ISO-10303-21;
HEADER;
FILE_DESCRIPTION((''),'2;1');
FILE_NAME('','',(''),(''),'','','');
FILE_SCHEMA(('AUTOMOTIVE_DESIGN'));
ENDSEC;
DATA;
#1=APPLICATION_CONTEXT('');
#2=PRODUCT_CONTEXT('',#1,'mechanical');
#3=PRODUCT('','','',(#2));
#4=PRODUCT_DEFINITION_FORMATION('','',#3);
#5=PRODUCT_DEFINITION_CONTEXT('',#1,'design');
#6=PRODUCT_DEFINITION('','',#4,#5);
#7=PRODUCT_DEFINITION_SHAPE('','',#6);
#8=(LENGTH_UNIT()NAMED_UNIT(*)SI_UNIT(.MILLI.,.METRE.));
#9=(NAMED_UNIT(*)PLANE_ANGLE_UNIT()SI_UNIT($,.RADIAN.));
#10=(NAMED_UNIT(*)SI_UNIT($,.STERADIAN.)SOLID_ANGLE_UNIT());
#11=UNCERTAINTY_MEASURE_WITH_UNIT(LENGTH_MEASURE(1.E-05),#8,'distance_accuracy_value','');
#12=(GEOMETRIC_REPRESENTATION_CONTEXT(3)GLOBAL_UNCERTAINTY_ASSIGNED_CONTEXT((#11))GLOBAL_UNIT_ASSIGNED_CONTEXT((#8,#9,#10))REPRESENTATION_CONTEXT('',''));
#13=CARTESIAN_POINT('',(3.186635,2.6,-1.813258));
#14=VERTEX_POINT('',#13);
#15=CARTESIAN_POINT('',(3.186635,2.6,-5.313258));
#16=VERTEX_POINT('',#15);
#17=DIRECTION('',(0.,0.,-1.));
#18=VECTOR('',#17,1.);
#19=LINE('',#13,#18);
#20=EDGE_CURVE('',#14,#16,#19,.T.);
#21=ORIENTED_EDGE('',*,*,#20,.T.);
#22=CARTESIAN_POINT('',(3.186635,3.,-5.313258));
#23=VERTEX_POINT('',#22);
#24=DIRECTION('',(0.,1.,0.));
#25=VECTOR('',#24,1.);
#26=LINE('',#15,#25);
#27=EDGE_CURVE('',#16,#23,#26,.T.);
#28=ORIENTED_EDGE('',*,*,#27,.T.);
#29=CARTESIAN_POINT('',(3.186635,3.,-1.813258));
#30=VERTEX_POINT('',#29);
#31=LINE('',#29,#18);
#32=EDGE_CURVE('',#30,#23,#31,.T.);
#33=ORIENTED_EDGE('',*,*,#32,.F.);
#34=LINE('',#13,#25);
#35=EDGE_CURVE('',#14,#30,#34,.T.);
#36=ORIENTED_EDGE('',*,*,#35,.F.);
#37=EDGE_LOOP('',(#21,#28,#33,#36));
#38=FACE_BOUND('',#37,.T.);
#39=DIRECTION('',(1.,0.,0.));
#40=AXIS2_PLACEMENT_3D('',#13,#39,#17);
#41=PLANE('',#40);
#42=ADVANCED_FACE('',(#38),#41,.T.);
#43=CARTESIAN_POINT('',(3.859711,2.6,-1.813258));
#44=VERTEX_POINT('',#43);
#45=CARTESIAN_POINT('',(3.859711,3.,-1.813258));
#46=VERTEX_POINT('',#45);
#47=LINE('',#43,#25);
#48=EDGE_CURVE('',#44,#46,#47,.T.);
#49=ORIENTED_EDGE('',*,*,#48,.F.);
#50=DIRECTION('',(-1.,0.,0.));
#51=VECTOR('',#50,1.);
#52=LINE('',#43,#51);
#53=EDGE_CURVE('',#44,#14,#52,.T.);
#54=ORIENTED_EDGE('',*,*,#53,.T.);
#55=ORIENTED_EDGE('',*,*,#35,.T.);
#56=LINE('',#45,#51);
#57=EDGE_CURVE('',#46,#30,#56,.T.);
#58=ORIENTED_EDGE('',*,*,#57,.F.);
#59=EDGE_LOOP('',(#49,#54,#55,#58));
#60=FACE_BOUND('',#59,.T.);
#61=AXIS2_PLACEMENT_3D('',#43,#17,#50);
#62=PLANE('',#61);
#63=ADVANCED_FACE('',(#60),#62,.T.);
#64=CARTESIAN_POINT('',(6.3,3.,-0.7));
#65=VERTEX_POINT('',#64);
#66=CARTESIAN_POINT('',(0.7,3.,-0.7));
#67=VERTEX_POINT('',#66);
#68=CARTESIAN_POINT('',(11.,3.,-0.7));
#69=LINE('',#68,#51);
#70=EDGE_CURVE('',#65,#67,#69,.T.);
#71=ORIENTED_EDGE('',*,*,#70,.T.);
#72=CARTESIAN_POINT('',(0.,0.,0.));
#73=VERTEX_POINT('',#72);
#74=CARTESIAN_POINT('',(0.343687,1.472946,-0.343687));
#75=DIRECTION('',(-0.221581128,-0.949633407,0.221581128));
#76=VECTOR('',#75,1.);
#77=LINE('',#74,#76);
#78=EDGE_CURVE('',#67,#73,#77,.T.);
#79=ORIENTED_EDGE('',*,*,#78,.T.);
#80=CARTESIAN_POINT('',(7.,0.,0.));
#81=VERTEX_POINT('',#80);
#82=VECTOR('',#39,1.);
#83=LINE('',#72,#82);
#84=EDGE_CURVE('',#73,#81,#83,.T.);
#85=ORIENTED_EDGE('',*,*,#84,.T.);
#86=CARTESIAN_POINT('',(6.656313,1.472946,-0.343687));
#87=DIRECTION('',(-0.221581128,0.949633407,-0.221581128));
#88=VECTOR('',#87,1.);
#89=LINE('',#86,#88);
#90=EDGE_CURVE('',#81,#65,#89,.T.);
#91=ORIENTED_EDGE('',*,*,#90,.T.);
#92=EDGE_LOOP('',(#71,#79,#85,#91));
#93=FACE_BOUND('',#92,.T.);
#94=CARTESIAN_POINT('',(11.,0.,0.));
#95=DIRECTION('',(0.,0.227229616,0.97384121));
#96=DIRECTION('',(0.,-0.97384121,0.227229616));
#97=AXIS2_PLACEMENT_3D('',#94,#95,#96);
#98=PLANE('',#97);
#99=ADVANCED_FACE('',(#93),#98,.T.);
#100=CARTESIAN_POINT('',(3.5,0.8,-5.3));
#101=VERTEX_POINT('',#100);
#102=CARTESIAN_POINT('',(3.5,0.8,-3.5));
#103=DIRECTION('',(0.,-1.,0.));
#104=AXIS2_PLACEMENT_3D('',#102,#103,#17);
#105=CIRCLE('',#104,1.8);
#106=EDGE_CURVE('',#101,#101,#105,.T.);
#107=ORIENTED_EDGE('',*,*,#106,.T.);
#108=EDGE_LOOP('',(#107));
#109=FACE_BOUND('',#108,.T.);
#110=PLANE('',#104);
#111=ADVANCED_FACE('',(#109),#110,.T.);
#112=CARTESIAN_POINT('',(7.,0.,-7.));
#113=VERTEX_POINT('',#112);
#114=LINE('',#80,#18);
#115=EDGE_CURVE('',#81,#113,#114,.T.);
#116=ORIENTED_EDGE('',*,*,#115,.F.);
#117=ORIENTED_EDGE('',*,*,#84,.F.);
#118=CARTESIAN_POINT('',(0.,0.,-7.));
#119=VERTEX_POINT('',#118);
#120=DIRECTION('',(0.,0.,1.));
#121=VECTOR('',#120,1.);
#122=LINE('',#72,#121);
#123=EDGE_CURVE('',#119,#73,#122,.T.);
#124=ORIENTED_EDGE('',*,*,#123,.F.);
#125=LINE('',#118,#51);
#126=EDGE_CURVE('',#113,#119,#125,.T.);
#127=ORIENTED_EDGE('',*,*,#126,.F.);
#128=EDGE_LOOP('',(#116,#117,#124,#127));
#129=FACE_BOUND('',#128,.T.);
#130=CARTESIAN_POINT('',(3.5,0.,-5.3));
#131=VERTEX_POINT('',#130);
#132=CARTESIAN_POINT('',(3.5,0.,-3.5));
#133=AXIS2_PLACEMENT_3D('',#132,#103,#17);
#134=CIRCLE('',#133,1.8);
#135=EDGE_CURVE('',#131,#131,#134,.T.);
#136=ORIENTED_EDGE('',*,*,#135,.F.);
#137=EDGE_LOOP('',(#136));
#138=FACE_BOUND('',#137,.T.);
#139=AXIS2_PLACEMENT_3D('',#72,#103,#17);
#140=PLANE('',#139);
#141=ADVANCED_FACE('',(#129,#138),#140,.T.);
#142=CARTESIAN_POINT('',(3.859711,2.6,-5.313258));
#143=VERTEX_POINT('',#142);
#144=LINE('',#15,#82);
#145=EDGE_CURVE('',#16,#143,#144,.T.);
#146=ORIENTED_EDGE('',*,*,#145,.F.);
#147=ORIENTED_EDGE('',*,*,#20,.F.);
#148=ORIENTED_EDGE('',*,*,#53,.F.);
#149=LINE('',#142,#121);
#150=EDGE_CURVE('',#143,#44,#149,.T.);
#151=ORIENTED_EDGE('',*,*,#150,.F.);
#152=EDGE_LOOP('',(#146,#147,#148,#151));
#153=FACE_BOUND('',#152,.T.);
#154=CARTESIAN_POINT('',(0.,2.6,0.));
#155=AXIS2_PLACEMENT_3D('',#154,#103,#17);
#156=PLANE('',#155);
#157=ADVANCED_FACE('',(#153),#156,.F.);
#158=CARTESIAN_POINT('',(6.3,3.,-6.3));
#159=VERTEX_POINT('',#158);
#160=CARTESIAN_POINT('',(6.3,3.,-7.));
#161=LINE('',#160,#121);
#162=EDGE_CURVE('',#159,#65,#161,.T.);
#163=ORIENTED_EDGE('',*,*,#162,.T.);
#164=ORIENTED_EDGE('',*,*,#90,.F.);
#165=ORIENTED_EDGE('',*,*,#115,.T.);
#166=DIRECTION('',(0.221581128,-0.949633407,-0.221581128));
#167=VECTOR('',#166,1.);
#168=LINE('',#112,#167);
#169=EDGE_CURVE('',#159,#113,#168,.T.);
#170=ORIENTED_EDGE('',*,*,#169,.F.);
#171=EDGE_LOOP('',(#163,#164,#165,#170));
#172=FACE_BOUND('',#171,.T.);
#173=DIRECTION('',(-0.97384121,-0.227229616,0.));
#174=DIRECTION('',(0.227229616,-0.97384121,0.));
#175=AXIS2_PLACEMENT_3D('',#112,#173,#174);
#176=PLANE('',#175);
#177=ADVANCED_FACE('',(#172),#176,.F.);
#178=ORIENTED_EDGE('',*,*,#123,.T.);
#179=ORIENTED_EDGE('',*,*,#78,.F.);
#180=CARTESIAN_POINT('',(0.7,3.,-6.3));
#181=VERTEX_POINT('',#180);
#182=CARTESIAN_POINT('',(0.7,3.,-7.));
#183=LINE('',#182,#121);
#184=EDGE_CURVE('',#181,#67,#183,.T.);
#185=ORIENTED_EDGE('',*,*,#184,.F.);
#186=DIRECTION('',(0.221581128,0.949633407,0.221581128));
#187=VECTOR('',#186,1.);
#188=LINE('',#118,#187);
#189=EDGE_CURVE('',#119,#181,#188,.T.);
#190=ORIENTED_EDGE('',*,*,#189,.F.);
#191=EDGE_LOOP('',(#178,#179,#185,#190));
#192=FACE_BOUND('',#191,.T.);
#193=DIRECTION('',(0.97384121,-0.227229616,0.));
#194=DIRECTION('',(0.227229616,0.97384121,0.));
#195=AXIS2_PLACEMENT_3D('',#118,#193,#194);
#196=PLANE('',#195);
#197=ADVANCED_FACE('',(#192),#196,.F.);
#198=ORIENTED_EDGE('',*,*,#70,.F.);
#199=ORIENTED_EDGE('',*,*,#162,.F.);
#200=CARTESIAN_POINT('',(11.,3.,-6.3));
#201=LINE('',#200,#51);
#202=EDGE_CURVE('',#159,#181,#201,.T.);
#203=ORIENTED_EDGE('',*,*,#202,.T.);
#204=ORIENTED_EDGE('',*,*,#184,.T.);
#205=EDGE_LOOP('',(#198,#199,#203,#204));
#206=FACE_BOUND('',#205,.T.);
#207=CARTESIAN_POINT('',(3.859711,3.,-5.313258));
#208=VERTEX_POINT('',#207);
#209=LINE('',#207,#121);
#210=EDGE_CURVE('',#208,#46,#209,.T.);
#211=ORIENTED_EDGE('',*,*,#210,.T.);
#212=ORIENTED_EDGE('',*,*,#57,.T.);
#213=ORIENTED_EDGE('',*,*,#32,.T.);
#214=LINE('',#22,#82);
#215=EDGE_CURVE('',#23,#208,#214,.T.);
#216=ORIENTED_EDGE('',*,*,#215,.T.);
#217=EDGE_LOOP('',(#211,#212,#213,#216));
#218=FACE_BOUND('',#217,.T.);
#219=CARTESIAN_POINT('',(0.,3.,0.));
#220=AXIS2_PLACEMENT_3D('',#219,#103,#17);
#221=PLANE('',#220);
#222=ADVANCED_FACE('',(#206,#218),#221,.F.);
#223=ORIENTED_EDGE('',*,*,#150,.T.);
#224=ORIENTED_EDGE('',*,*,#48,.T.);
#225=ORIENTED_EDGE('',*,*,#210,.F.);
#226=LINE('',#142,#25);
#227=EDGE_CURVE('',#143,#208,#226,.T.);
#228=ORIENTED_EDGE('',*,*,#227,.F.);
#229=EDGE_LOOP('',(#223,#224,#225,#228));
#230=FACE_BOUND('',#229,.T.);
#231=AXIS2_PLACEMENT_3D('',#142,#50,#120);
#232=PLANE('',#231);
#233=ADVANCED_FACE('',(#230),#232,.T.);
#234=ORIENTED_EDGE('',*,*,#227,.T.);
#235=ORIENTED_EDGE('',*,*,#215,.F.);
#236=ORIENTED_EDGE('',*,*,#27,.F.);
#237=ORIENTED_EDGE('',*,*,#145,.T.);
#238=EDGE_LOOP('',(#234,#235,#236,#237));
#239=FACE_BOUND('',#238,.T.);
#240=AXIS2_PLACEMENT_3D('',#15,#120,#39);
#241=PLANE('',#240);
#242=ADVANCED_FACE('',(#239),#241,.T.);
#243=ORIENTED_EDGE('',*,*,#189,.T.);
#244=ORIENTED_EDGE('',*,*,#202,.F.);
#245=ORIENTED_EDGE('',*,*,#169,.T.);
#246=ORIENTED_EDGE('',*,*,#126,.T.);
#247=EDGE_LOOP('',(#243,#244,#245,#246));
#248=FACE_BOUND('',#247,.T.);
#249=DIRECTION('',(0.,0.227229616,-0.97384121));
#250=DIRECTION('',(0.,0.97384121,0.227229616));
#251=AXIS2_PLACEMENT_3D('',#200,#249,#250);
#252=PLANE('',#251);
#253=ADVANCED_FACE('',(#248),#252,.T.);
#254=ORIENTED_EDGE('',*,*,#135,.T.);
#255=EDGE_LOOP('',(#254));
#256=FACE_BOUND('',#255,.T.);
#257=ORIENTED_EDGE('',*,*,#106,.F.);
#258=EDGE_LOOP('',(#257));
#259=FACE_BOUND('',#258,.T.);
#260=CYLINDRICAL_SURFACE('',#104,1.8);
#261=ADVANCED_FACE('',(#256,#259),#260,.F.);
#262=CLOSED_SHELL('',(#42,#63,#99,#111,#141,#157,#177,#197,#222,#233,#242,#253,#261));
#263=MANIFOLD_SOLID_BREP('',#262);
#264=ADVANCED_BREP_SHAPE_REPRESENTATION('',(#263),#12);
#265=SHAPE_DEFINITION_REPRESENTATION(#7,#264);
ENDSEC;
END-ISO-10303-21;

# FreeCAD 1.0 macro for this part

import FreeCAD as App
import Part
import Sketcher
from FreeCAD import Vector
Q = App.Units.Quantity

doc = App.newDocument("Part")
body = doc.addObject("PartDesign::Body", "Body")

# Sketch on XZ plane
sketch1 = body.newObject("Sketcher::SketchObject", "Sketch")
sketch1.AttachmentSupport = (doc.getObject("XZ_Plane"), [""])
sketch1.MapMode = "FlatFace"
sketch1.addGeometry([
    Part.LineSegment(Vector(0, -7, 0), Vector(0, 0, 0)),
    Part.LineSegment(Vector(0, 0, 0), Vector(7, 0, 0)),
    Part.LineSegment(Vector(7, 0, 0), Vector(7, -7, 0)),
    Part.LineSegment(Vector(7, -7, 0), Vector(0, -7, 0)),
], False)
sketch1.addConstraint([
    Sketcher.Constraint("Coincident", 0, 2, 1, 1),
    Sketcher.Constraint("Coincident", 1, 2, 2, 1),
    Sketcher.Constraint("Coincident", 2, 2, 3, 1),
    Sketcher.Constraint("Coincident", 3, 2, 0, 1),
    Sketcher.Constraint("Vertical", 0),
    Sketcher.Constraint("Horizontal", 1),
    Sketcher.Constraint("Vertical", 2),
    Sketcher.Constraint("Horizontal", 3),
    Sketcher.Constraint("Coincident", 0, 2, -1, 1),
    Sketcher.Constraint("Equal", 3, 0),
    Sketcher.Constraint("DistanceX", 1, 1, 1, 2, Q("7 mm")),
])
pad1 = body.newObject("PartDesign::Pad", "Pad")
pad1.Profile = sketch1
pad1.Length = 3
pad1.Reversed = True

# Sketch on XY plane
sketch2 = body.newObject("Sketcher::SketchObject", "Sketch001")
sketch2.AttachmentSupport = (doc.getObject("XY_Plane"), [""])
sketch2.MapMode = "FlatFace"
sketch2.addGeometry([
    Part.LineSegment(Vector(0, 0, 0), Vector(0.7, 3, 0)),  # 0
    Part.LineSegment(Vector(0.7, 3, 0), Vector(0, 3, 0)),  # 1
    Part.LineSegment(Vector(0, 3, 0), Vector(0, 0, 0)),  # 2
    Part.LineSegment(Vector(6.3, 3, 0), Vector(7, 0, 0)),  # 3
    Part.LineSegment(Vector(7, 0, 0), Vector(7, 3, 0)),  # 4
    Part.LineSegment(Vector(7, 3, 0), Vector(6.3, 3, 0)),  # 5
], False)
sketch2.addConstraint([
    Sketcher.Constraint("Coincident", 0, 2, 1, 1),
    Sketcher.Constraint("Coincident", 1, 2, 2, 1),
    Sketcher.Constraint("Coincident", 2, 2, 0, 1),
    Sketcher.Constraint("Coincident", 3, 2, 4, 1),
    Sketcher.Constraint("Coincident", 4, 2, 5, 1),
    Sketcher.Constraint("Coincident", 5, 2, 3, 1),
    Sketcher.Constraint("Horizontal", 1),
    Sketcher.Constraint("Vertical", 2),
    Sketcher.Constraint("Vertical", 4),
    Sketcher.Constraint("Horizontal", 5),
    Sketcher.Constraint("Coincident", 2, 2, -1, 1),
    Sketcher.Constraint("PointOnObject", 3, 2, -1),
    Sketcher.Constraint("Horizontal", 1, 2, 4, 2),
    Sketcher.Constraint("Equal", 1, 5),
    Sketcher.Constraint("DistanceY", 2, 2, 2, 1, Q("3 mm")),
    Sketcher.Constraint("DistanceX", 1, 2, 1, 1, Q("0.7 mm")),
    Sketcher.Constraint("DistanceX", -1, 1, 3, 2, Q("7 mm")),
])
pocket1 = body.newObject("PartDesign::Pocket", "Pocket")
pocket1.Profile = sketch2
pocket1.Length = 7

# Sketch on YZ plane
sketch3 = body.newObject("Sketcher::SketchObject", "Sketch002")
sketch3.AttachmentSupport = (doc.getObject("YZ_Plane"), [""])
sketch3.MapMode = "FlatFace"
sketch3.addGeometry([
    Part.LineSegment(Vector(0, 0, 0), Vector(3, -0.7, 0)),  # 0
    Part.LineSegment(Vector(3, -0.7, 0), Vector(3, 0, 0)),  # 1
    Part.LineSegment(Vector(3, 0, 0), Vector(0, 0, 0)),  # 2
    Part.LineSegment(Vector(3, -7, 0), Vector(3, -6.3, 0)),  # 3
    Part.LineSegment(Vector(3, -6.3, 0), Vector(0, -7, 0)),  # 4
    Part.LineSegment(Vector(0, -7, 0), Vector(3, -7, 0)),  # 5
], False)
sketch3.addConstraint([
    Sketcher.Constraint("Coincident", 0, 2, 1, 1),
    Sketcher.Constraint("Coincident", 1, 2, 2, 1),
    Sketcher.Constraint("Coincident", 2, 2, 0, 1),
    Sketcher.Constraint("Coincident", 3, 2, 4, 1),
    Sketcher.Constraint("Coincident", 4, 2, 5, 1),
    Sketcher.Constraint("Coincident", 5, 2, 3, 1),
    Sketcher.Constraint("Vertical", 1),
    Sketcher.Constraint("Horizontal", 2),
    Sketcher.Constraint("Vertical", 3),
    Sketcher.Constraint("Horizontal", 5),
    Sketcher.Constraint("Coincident", 2, 2, -1, 1),
    Sketcher.Constraint("PointOnObject", 4, 2, -2),
    Sketcher.Constraint("Vertical", 1, 2, 3, 2),
    Sketcher.Constraint("Equal", 1, 3),
    Sketcher.Constraint("DistanceX", 2, 2, 2, 1, Q("3 mm")),
    Sketcher.Constraint("DistanceY", 1, 1, 1, 2, Q("0.7 mm")),
    Sketcher.Constraint("DistanceY", 4, 2, -1, 1, Q("7 mm")),
])
pocket2 = body.newObject("PartDesign::Pocket", "Pocket001")
pocket2.Profile = sketch3
pocket2.Length = 11
pocket2.Reversed = True

# Sketch on XZ plane
sketch4 = body.newObject("Sketcher::SketchObject", "Sketch003")
sketch4.AttachmentSupport = (doc.getObject("XZ_Plane"), [""])
sketch4.MapMode = "FlatFace"
sketch4.addGeometry(Part.Circle(Vector(3.5, -3.5, 0), Vector(0, 0, 1), 1.8), False)
sketch4.addConstraint([
    Sketcher.Constraint("Diameter", 0, Q("3.6 mm")),
    Sketcher.Constraint("DistanceX", -1, 1, 0, 3, Q("3.5 mm")),
    Sketcher.Constraint("DistanceY", 0, 3, -1, 1, Q("3.5 mm")),
])
pocket3 = body.newObject("PartDesign::Pocket", "Pocket002")
pocket3.Profile = sketch4
pocket3.Length = 0.8

# Sketch on XZ plane
sketch5 = body.newObject("Sketcher::SketchObject", "Sketch004")
sketch5.AttachmentSupport = (doc.getObject("XZ_Plane"), [""])
sketch5.MapMode = "FlatFace"
sketch5.AttachmentOffset = App.Placement(Vector(0, 0, -3), App.Rotation())
sketch5.addGeometry([
    Part.LineSegment(Vector(3.2, -5.3, 0), Vector(3.2, -1.8, 0)),
    Part.LineSegment(Vector(3.2, -1.8, 0), Vector(3.9, -1.8, 0)),
    Part.LineSegment(Vector(3.9, -1.8, 0), Vector(3.9, -5.3, 0)),
    Part.LineSegment(Vector(3.9, -5.3, 0), Vector(3.2, -5.3, 0)),
], False)
sketch5.addConstraint([
    Sketcher.Constraint("Coincident", 0, 2, 1, 1),
    Sketcher.Constraint("Coincident", 1, 2, 2, 1),
    Sketcher.Constraint("Coincident", 2, 2, 3, 1),
    Sketcher.Constraint("Coincident", 3, 2, 0, 1),
    Sketcher.Constraint("Vertical", 0),
    Sketcher.Constraint("Horizontal", 1),
    Sketcher.Constraint("Vertical", 2),
    Sketcher.Constraint("Horizontal", 3),
    Sketcher.Constraint("DistanceY", 0, 1, 0, 2, Q("3.5 mm")),
    Sketcher.Constraint("DistanceX", 1, 1, 1, 2, Q("0.673077 mm")),
    Sketcher.Constraint("DistanceY", 0, 2, -1, 1, Q("1.813258 mm")),
    Sketcher.Constraint("DistanceX", -1, 1, 1, 2, Q("3.859711 mm")),
])
pocket4 = body.newObject("PartDesign::Pocket", "Pocket003")
pocket4.Profile = sketch5
pocket4.Length = 0.4
pocket4.Reversed = True

doc.recompute()
